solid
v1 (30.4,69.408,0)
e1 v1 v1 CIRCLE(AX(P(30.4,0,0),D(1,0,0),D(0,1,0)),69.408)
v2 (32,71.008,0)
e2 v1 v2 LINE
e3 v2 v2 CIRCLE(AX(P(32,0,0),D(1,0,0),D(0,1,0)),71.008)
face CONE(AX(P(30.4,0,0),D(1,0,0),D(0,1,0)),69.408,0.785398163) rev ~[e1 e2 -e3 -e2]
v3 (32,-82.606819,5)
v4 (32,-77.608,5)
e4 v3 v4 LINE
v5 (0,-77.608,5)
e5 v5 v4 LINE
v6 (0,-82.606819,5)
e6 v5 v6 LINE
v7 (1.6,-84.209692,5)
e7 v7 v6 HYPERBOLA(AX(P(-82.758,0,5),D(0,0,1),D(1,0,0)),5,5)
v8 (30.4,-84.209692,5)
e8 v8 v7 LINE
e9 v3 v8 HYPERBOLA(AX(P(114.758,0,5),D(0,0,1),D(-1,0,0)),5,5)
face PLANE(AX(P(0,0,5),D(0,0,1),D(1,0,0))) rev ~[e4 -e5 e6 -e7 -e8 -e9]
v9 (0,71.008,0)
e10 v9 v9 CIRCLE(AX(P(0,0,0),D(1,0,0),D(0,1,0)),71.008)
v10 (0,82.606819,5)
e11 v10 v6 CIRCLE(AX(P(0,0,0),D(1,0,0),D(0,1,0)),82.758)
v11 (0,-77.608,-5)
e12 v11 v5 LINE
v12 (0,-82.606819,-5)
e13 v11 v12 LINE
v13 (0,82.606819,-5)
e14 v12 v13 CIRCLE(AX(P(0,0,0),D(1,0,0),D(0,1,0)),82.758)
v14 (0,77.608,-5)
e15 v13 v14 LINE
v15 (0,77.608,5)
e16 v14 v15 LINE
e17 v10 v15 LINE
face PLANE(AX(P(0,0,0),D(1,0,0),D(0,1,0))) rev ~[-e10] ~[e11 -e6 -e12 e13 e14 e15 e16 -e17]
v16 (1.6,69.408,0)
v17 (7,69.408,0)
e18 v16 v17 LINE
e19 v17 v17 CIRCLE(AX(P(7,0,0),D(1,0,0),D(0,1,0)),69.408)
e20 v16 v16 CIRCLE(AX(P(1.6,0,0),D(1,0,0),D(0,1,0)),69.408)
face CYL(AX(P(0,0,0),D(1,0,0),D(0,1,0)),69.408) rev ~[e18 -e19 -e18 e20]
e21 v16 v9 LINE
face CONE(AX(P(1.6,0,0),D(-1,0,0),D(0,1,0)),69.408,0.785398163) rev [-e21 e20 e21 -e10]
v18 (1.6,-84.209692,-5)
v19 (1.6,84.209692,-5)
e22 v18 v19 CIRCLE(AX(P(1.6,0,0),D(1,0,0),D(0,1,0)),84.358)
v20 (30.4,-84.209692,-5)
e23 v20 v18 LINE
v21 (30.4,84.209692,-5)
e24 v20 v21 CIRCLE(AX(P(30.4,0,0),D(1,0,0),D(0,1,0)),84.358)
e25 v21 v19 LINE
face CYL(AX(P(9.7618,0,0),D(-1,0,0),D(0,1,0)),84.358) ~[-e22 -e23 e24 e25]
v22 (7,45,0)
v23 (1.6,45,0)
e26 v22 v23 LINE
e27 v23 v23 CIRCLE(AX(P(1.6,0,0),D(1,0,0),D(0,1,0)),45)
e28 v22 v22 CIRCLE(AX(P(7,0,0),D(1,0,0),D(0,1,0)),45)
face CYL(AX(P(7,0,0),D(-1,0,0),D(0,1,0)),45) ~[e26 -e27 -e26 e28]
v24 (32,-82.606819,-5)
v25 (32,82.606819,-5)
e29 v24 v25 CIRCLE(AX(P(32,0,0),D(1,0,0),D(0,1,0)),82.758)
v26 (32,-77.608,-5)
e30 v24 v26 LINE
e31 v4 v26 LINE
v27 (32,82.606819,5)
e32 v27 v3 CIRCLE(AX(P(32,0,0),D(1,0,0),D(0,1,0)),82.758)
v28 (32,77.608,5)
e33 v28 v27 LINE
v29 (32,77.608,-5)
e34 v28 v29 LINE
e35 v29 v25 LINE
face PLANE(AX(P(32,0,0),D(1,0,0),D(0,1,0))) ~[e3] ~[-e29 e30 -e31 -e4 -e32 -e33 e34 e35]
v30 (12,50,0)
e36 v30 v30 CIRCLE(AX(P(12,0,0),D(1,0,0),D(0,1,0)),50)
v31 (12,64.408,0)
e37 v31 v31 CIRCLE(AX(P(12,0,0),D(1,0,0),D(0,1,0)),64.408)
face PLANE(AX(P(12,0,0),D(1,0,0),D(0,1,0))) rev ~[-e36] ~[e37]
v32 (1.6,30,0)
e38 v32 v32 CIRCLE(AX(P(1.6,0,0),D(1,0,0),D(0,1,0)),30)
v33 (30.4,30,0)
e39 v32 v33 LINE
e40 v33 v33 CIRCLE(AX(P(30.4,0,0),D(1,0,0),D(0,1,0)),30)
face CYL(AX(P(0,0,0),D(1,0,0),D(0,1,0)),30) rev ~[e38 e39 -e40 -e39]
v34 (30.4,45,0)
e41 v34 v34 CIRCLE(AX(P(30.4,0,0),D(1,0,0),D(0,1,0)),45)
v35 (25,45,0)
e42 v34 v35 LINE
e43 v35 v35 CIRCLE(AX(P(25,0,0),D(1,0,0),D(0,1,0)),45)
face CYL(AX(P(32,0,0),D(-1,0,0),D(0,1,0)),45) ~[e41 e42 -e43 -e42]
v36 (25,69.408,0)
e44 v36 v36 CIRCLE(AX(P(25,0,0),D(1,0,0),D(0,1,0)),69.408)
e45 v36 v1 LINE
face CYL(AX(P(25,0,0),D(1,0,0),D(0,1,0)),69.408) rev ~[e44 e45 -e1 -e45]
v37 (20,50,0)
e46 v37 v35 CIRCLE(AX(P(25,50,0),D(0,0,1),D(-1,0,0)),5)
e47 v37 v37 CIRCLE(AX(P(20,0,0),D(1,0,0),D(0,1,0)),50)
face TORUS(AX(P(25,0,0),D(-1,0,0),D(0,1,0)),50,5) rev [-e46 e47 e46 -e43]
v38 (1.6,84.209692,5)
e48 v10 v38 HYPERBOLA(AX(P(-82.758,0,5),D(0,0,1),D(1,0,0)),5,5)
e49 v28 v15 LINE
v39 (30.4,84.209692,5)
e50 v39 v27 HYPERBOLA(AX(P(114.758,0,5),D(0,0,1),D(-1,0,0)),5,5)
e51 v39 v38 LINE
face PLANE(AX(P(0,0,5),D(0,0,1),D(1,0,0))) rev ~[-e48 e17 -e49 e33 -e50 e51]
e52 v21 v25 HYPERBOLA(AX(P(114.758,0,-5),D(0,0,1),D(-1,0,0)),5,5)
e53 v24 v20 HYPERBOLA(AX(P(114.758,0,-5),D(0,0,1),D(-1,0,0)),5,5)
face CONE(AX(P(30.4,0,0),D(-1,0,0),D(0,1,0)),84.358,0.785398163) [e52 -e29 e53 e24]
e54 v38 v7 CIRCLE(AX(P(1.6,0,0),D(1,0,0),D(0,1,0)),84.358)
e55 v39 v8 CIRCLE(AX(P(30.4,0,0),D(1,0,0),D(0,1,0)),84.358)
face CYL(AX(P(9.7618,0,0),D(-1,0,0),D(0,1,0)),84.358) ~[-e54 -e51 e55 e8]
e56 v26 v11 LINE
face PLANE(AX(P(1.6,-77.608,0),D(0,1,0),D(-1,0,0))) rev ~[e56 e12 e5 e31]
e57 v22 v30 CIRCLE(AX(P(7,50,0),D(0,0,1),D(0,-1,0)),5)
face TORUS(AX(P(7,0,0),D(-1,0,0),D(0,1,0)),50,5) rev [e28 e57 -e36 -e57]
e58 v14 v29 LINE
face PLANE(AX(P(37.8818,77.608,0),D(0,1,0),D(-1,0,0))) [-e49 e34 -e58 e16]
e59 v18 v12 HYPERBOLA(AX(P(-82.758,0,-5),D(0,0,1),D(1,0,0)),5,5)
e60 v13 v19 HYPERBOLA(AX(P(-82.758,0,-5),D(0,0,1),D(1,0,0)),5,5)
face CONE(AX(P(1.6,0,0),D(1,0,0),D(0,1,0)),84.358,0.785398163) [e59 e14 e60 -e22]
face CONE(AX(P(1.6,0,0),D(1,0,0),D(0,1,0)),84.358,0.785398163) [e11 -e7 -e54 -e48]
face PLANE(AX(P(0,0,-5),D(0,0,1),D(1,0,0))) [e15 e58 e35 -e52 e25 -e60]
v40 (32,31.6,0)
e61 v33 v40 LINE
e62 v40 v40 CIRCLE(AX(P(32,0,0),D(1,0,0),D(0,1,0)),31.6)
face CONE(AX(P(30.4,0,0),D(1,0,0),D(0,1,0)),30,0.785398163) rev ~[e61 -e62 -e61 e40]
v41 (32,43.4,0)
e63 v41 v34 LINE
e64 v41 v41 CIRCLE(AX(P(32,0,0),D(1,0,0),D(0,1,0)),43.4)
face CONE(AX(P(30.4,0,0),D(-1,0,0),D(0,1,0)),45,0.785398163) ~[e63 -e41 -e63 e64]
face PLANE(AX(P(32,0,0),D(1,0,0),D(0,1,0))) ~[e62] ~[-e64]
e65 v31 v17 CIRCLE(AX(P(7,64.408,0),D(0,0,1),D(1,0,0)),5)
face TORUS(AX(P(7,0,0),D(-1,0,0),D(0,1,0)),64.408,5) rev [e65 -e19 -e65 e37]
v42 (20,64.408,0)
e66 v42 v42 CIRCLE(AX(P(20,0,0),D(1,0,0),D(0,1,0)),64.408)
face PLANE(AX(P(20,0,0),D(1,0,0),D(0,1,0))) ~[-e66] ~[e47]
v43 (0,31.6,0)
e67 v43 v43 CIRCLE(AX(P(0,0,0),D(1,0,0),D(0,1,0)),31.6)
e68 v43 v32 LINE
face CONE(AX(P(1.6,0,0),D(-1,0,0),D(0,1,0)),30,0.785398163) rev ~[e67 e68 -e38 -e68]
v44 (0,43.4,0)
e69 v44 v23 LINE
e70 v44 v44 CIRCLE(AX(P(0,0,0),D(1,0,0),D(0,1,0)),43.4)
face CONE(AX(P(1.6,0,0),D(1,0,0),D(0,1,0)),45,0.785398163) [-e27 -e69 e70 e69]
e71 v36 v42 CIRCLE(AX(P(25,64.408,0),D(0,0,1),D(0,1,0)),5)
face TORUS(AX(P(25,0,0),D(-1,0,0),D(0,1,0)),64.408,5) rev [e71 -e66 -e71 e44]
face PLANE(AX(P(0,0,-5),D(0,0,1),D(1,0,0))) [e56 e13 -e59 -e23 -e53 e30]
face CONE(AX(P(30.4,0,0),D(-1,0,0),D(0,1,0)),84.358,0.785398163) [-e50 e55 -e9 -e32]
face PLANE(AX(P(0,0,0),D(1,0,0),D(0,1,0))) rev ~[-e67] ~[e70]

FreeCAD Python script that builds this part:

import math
import FreeCAD as App
import Part
import Sketcher
from FreeCAD import Vector
Q = App.Units.Quantity


def edges_at(feature, points):
    """Names of the edges that pass closest to the given points."""
    edges = feature.Shape.Edges
    near = lambda p: min(range(len(edges)), key=lambda i: edges[i].distToShape(Part.Vertex(*p))[0])
    return sorted({f"Edge{near(p) + 1}" for p in points})

doc = App.newDocument("Part")
body = doc.addObject("PartDesign::Body", "Body")

sketch1 = body.newObject("Sketcher::SketchObject", "Sketch")
sketch1.AttachmentSupport = (doc.getObject("XY_Plane"), [""])
sketch1.MapMode = "FlatFace"
sketch1.addGeometry(Part.LineSegment(Vector(0, 45, 0), Vector(0, 30, 0)), False)
sketch1.addGeometry(Part.LineSegment(Vector(0, 30, 0), Vector(32, 30, 0)), False)
sketch1.addGeometry(Part.LineSegment(Vector(32, 30, 0), Vector(32, 45, 0)), False)
sketch1.addGeometry(Part.LineSegment(Vector(32, 45, 0), Vector(25, 45, 0)), False)
sketch1.addGeometry(Part.ArcOfCircle(Part.Circle(Vector(25, 50, 0), Vector(0, 0, 1), 5), math.radians(180), math.radians(270)), False)
sketch1.addGeometry(Part.LineSegment(Vector(20, 50, 0), Vector(20, 64.408, 0)), False)
sketch1.addGeometry(Part.ArcOfCircle(Part.Circle(Vector(25, 64.408, 0), Vector(0, 0, 1), 5), math.radians(90), math.radians(180)), False)
sketch1.addGeometry(Part.LineSegment(Vector(25, 69.408, 0), Vector(32, 69.408, 0)), False)
sketch1.addGeometry(Part.LineSegment(Vector(32, 69.408, 0), Vector(32, 84.358, 0)), False)
sketch1.addGeometry(Part.LineSegment(Vector(32, 84.358, 0), Vector(0, 84.358, 0)), False)
sketch1.addGeometry(Part.LineSegment(Vector(0, 84.358, 0), Vector(0, 69.408, 0)), False)
sketch1.addGeometry(Part.LineSegment(Vector(0, 69.408, 0), Vector(7, 69.408, 0)), False)
sketch1.addGeometry(Part.ArcOfCircle(Part.Circle(Vector(7, 64.408, 0), Vector(0, 0, 1), 5), math.radians(0), math.radians(90)), False)
sketch1.addGeometry(Part.LineSegment(Vector(12, 64.408, 0), Vector(12, 50, 0)), False)
sketch1.addGeometry(Part.ArcOfCircle(Part.Circle(Vector(7, 50, 0), Vector(0, 0, 1), 5), math.radians(-90), math.radians(0)), False)
sketch1.addGeometry(Part.LineSegment(Vector(7, 45, 0), Vector(0, 45, 0)), False)
sketch1.addConstraint(Sketcher.Constraint("Coincident", 0, 2, 1, 1))
sketch1.addConstraint(Sketcher.Constraint("Coincident", 1, 2, 2, 1))
sketch1.addConstraint(Sketcher.Constraint("Coincident", 2, 2, 3, 1))
sketch1.addConstraint(Sketcher.Constraint("Tangent", 3, 2, 4, 2))
sketch1.addConstraint(Sketcher.Constraint("Tangent", 4, 1, 5, 1))
sketch1.addConstraint(Sketcher.Constraint("Tangent", 5, 2, 6, 2))
sketch1.addConstraint(Sketcher.Constraint("Tangent", 6, 1, 7, 1))
sketch1.addConstraint(Sketcher.Constraint("Coincident", 7, 2, 8, 1))
sketch1.addConstraint(Sketcher.Constraint("Coincident", 8, 2, 9, 1))
sketch1.addConstraint(Sketcher.Constraint("Coincident", 9, 2, 10, 1))
sketch1.addConstraint(Sketcher.Constraint("Coincident", 10, 2, 11, 1))
sketch1.addConstraint(Sketcher.Constraint("Tangent", 11, 2, 12, 2))
sketch1.addConstraint(Sketcher.Constraint("Tangent", 12, 1, 13, 1))
sketch1.addConstraint(Sketcher.Constraint("Tangent", 13, 2, 14, 2))
sketch1.addConstraint(Sketcher.Constraint("Tangent", 14, 1, 15, 1))
sketch1.addConstraint(Sketcher.Constraint("Coincident", 15, 2, 0, 1))
sketch1.addConstraint(Sketcher.Constraint("Vertical", 0))
sketch1.addConstraint(Sketcher.Constraint("Horizontal", 1))
sketch1.addConstraint(Sketcher.Constraint("Vertical", 2))
sketch1.addConstraint(Sketcher.Constraint("Horizontal", 3))
sketch1.addConstraint(Sketcher.Constraint("Vertical", 5))
sketch1.addConstraint(Sketcher.Constraint("Horizontal", 7))
sketch1.addConstraint(Sketcher.Constraint("Vertical", 8))
sketch1.addConstraint(Sketcher.Constraint("Horizontal", 9))
sketch1.addConstraint(Sketcher.Constraint("Vertical", 10))
sketch1.addConstraint(Sketcher.Constraint("Horizontal", 11))
sketch1.addConstraint(Sketcher.Constraint("Vertical", 13))
sketch1.addConstraint(Sketcher.Constraint("Horizontal", 15))
sketch1.addConstraint(Sketcher.Constraint("Equal", 4, 6))
sketch1.addConstraint(Sketcher.Constraint("Equal", 6, 12))
sketch1.addConstraint(Sketcher.Constraint("Equal", 12, 14))
sketch1.addConstraint(Sketcher.Constraint("PointOnObject", 0, 2, -2))
sketch1.addConstraint(Sketcher.Constraint("PointOnObject", 9, 2, -2))
sketch1.addConstraint(Sketcher.Constraint("Horizontal", 6, 3, 12, 3))
sketch1.addConstraint(Sketcher.Constraint("Horizontal", 4, 3, 14, 3))
sketch1.addConstraint(Sketcher.Constraint("Vertical", 2, 2, 7, 2))
sketch1.addConstraint(Sketcher.Constraint("Equal", 7, 11))
sketch1.addConstraint(Sketcher.Constraint("Radius", 4, Q("5 mm")))
sketch1.addConstraint(Sketcher.Constraint("DistanceX", 1, 1, 1, 2, Q("32 mm")))
sketch1.addConstraint(Sketcher.Constraint("DistanceX", -1, 1, 12, 1, Q("12 mm")))
sketch1.addConstraint(Sketcher.Constraint("DistanceY", 0, 2, 0, 1, Q("15 mm")))
sketch1.addConstraint(Sketcher.Constraint("DistanceY", -1, 1, 4, 3, Q("50 mm")))
sketch1.addConstraint(Sketcher.Constraint("DistanceY", 8, 1, 8, 2, Q("14.95 mm")))
sketch1.addConstraint(Sketcher.Constraint("DistanceY", 5, 1, 5, 2, Q("14.408 mm")))
revolution = body.newObject("PartDesign::Revolution", "Revolution")
revolution.Profile = sketch1
revolution.ReferenceAxis = (sketch1, ["H_Axis"])
revolution.Angle = 360
doc.recompute()

chamfer = body.newObject("PartDesign::Chamfer", "Chamfer")
chamfer.Base = (revolution, edges_at(revolution, [
    (0, -84.358, 0),
    (0, -69.408, 0),
    (32, -84.358, 0),
    (32, -69.408, 0),
    (32, -30, 0),
    (0, -30, 0),
    (32, -45, 0),
    (0, -45, 0),
]))
chamfer.Size = 1.6

sketch2 = body.newObject("Sketcher::SketchObject", "Sketch001")
sketch2.AttachmentSupport = (doc.getObject("XY_Plane"), [""])
sketch2.MapMode = "FlatFace"
sketch2.addGeometry(Part.LineSegment(Vector(37.8818, 84.358, 0), Vector(-1.0807, 84.358, 0)), False)
sketch2.addGeometry(Part.LineSegment(Vector(-1.0807, 84.358, 0), Vector(-1.0807, 77.608, 0)), False)
sketch2.addGeometry(Part.LineSegment(Vector(-1.0807, 77.608, 0), Vector(37.8818, 77.608, 0)), False)
sketch2.addGeometry(Part.LineSegment(Vector(37.8818, 77.608, 0), Vector(37.8818, 84.358, 0)), False)
sketch2.addGeometry(Part.LineSegment(Vector(37.8818, -77.608, 0), Vector(-1.0807, -77.608, 0)), False)
sketch2.addGeometry(Part.LineSegment(Vector(-1.0807, -77.608, 0), Vector(-1.0807, -84.358, 0)), False)
sketch2.addGeometry(Part.LineSegment(Vector(-1.0807, -84.358, 0), Vector(37.8818, -84.358, 0)), False)
sketch2.addGeometry(Part.LineSegment(Vector(37.8818, -84.358, 0), Vector(37.8818, -77.608, 0)), False)
sketch2.addConstraint(Sketcher.Constraint("Coincident", 0, 2, 1, 1))
sketch2.addConstraint(Sketcher.Constraint("Coincident", 1, 2, 2, 1))
sketch2.addConstraint(Sketcher.Constraint("Coincident", 2, 2, 3, 1))
sketch2.addConstraint(Sketcher.Constraint("Coincident", 3, 2, 0, 1))
sketch2.addConstraint(Sketcher.Constraint("Coincident", 4, 2, 5, 1))
sketch2.addConstraint(Sketcher.Constraint("Coincident", 5, 2, 6, 1))
sketch2.addConstraint(Sketcher.Constraint("Coincident", 6, 2, 7, 1))
sketch2.addConstraint(Sketcher.Constraint("Coincident", 7, 2, 4, 1))
sketch2.addConstraint(Sketcher.Constraint("Horizontal", 0))
sketch2.addConstraint(Sketcher.Constraint("Vertical", 1))
sketch2.addConstraint(Sketcher.Constraint("Horizontal", 2))
sketch2.addConstraint(Sketcher.Constraint("Vertical", 3))
sketch2.addConstraint(Sketcher.Constraint("Horizontal", 4))
sketch2.addConstraint(Sketcher.Constraint("Vertical", 5))
sketch2.addConstraint(Sketcher.Constraint("Horizontal", 6))
sketch2.addConstraint(Sketcher.Constraint("Vertical", 7))
sketch2.addConstraint(Sketcher.Constraint("Symmetric", 1, 2, 4, 2, -1))
sketch2.addConstraint(Sketcher.Constraint("Symmetric", 3, 2, 6, 2, -1))
sketch2.addConstraint(Sketcher.Constraint("DistanceY", -1, 1, 1, 2, Q("77.608 mm")))
sketch2.addConstraint(Sketcher.Constraint("DistanceY", 1, 2, 1, 1, Q("6.75 mm")))
sketch2.addConstraint(Sketcher.Constraint("DistanceX", 0, 2, 0, 1, Q("38.9625 mm")))
sketch2.addConstraint(Sketcher.Constraint("DistanceX", 0, 2, -1, 1, Q("1.0807 mm")))
pocket1 = body.newObject("PartDesign::Pocket", "Pocket")
pocket1.Profile = sketch2
pocket1.Length = 10
pocket1.Midplane = True

doc.recompute()
